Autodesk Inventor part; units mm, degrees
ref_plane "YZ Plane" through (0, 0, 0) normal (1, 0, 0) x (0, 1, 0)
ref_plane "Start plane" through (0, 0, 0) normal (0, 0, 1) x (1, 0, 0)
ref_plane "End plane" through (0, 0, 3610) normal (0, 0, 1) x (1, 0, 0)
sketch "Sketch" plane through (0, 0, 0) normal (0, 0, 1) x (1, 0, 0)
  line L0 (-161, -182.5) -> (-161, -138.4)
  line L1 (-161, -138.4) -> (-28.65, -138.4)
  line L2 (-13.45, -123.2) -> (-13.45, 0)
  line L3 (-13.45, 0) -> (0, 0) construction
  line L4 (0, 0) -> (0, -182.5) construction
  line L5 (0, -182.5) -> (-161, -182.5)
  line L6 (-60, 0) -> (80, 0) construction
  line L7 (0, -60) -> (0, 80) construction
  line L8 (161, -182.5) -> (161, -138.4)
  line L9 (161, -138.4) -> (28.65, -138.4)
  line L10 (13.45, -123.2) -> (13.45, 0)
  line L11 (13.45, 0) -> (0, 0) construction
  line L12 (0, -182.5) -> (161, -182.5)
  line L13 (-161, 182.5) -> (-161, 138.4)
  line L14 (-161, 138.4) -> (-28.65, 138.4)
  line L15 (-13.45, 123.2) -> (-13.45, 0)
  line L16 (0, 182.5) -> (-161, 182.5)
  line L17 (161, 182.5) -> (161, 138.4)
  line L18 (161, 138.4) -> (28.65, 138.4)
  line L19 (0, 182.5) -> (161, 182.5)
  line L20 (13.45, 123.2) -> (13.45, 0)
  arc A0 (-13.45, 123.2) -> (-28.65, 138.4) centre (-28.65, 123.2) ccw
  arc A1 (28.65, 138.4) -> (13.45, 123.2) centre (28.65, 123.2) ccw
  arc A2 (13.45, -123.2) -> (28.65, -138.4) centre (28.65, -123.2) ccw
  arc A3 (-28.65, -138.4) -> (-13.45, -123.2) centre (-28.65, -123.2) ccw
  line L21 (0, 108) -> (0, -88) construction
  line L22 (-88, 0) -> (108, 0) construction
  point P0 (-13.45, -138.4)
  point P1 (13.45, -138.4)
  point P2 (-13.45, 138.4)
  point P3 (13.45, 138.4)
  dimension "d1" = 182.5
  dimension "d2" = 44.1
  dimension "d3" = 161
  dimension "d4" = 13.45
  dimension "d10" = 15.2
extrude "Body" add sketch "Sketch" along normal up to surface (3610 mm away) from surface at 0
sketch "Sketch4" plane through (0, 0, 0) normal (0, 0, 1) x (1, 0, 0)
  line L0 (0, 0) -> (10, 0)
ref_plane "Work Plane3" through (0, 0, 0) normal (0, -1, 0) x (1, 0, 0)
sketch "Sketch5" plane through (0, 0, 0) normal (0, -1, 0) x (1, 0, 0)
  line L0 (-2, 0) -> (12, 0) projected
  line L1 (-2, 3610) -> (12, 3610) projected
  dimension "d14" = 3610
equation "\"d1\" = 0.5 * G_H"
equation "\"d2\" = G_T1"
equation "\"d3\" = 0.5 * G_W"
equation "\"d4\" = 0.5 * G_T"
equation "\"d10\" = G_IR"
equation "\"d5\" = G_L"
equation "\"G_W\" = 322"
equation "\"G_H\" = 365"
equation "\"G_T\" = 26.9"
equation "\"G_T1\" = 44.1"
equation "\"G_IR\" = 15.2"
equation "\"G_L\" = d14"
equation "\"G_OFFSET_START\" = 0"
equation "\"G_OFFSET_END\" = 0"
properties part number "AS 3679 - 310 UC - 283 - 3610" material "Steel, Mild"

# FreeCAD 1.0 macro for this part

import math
import FreeCAD as App
import Part
import Sketcher

doc = App.newDocument("Part")
body = doc.addObject("PartDesign::Body", "Body")

sketch1 = body.newObject("Sketcher::SketchObject", "Sketch")
sketch1.AttachmentSupport = (doc.getObject("XY_Plane"), [""])
sketch1.MapMode = "FlatFace"
sketch1.addGeometry([
    Part.LineSegment(App.Vector(-161, -138, 0), App.Vector(-161, -182, 0)),
    Part.LineSegment(App.Vector(-161, -182, 0), App.Vector(161, -182, 0)),
    Part.LineSegment(App.Vector(161, -182, 0), App.Vector(161, -138, 0)),
    Part.LineSegment(App.Vector(161, -138, 0), App.Vector(29, -138, 0)),
    Part.ArcOfCircle(Part.Circle(App.Vector(29, -123, 0), App.Vector(0, 0, 1), 15), math.radians(180), math.radians(270)),
    Part.LineSegment(App.Vector(13, -123, 0), App.Vector(13, 123, 0)),
    Part.ArcOfCircle(Part.Circle(App.Vector(29, 123, 0), App.Vector(0, 0, 1), 15), math.radians(90), math.radians(180)),
    Part.LineSegment(App.Vector(29, 138, 0), App.Vector(161, 138, 0)),
    Part.LineSegment(App.Vector(161, 138, 0), App.Vector(161, 182, 0)),
    Part.LineSegment(App.Vector(161, 182, 0), App.Vector(-161, 182, 0)),
    Part.LineSegment(App.Vector(-161, 182, 0), App.Vector(-161, 138, 0)),
    Part.LineSegment(App.Vector(-161, 138, 0), App.Vector(-29, 138, 0)),
    Part.ArcOfCircle(Part.Circle(App.Vector(-29, 123, 0), App.Vector(0, 0, 1), 15), math.radians(0), math.radians(90)),
    Part.LineSegment(App.Vector(-13, 123, 0), App.Vector(-13, -123, 0)),
    Part.ArcOfCircle(Part.Circle(App.Vector(-29, -123, 0), App.Vector(0, 0, 1), 15), math.radians(-90), math.radians(0)),
    Part.LineSegment(App.Vector(-29, -138, 0), App.Vector(-161, -138, 0)),
], False)
sketch1.addConstraint([
    Sketcher.Constraint("Coincident", 0, 2, 1, 1),
    Sketcher.Constraint("Coincident", 1, 2, 2, 1),
    Sketcher.Constraint("Coincident", 2, 2, 3, 1),
    Sketcher.Constraint("Tangent", 3, 2, 4, 2),
    Sketcher.Constraint("Tangent", 4, 1, 5, 1),
    Sketcher.Constraint("Tangent", 5, 2, 6, 2),
    Sketcher.Constraint("Tangent", 6, 1, 7, 1),
    Sketcher.Constraint("Coincident", 7, 2, 8, 1),
    Sketcher.Constraint("Coincident", 8, 2, 9, 1),
    Sketcher.Constraint("Coincident", 9, 2, 10, 1),
    Sketcher.Constraint("Coincident", 10, 2, 11, 1),
    Sketcher.Constraint("Tangent", 11, 2, 12, 2),
    Sketcher.Constraint("Tangent", 12, 1, 13, 1),
    Sketcher.Constraint("Tangent", 13, 2, 14, 2),
    Sketcher.Constraint("Tangent", 14, 1, 15, 1),
    Sketcher.Constraint("Coincident", 15, 2, 0, 1),
    Sketcher.Constraint("Vertical", 0),
    Sketcher.Constraint("Horizontal", 1),
    Sketcher.Constraint("Vertical", 2),
    Sketcher.Constraint("Horizontal", 3),
    Sketcher.Constraint("Vertical", 5),
    Sketcher.Constraint("Horizontal", 7),
    Sketcher.Constraint("Vertical", 8),
    Sketcher.Constraint("Horizontal", 9),
    Sketcher.Constraint("Vertical", 10),
    Sketcher.Constraint("Horizontal", 11),
    Sketcher.Constraint("Vertical", 13),
    Sketcher.Constraint("Horizontal", 15),
    Sketcher.Constraint("Equal", 4, 6),
    Sketcher.Constraint("Equal", 6, 12),
    Sketcher.Constraint("Equal", 12, 14),
    Sketcher.Constraint("Symmetric", 4, 3, 12, 3, -1, 1),
    Sketcher.Constraint("Symmetric", 0, 2, 8, 2, -1, 1),
    Sketcher.Constraint("Symmetric", 7, 2, 10, 2, -2),
    Sketcher.Constraint("Symmetric", 2, 2, 15, 2, -2),
    Sketcher.Constraint("Radius", 4, 15.2),
    Sketcher.Constraint("DistanceY", 0, 2, 0, 1, 44.1),
    Sketcher.Constraint("DistanceX", 0, 2, -1, 1, 161.0),
    Sketcher.Constraint("DistanceY", 0, 2, -1, 1, 182.5),
    Sketcher.Constraint("DistanceX", -1, 1, 4, 1, 13.45),
])
pad1 = body.newObject("PartDesign::Pad", "Pad")
pad1.Profile = sketch1
pad1.Length = 3610

doc.recompute()
